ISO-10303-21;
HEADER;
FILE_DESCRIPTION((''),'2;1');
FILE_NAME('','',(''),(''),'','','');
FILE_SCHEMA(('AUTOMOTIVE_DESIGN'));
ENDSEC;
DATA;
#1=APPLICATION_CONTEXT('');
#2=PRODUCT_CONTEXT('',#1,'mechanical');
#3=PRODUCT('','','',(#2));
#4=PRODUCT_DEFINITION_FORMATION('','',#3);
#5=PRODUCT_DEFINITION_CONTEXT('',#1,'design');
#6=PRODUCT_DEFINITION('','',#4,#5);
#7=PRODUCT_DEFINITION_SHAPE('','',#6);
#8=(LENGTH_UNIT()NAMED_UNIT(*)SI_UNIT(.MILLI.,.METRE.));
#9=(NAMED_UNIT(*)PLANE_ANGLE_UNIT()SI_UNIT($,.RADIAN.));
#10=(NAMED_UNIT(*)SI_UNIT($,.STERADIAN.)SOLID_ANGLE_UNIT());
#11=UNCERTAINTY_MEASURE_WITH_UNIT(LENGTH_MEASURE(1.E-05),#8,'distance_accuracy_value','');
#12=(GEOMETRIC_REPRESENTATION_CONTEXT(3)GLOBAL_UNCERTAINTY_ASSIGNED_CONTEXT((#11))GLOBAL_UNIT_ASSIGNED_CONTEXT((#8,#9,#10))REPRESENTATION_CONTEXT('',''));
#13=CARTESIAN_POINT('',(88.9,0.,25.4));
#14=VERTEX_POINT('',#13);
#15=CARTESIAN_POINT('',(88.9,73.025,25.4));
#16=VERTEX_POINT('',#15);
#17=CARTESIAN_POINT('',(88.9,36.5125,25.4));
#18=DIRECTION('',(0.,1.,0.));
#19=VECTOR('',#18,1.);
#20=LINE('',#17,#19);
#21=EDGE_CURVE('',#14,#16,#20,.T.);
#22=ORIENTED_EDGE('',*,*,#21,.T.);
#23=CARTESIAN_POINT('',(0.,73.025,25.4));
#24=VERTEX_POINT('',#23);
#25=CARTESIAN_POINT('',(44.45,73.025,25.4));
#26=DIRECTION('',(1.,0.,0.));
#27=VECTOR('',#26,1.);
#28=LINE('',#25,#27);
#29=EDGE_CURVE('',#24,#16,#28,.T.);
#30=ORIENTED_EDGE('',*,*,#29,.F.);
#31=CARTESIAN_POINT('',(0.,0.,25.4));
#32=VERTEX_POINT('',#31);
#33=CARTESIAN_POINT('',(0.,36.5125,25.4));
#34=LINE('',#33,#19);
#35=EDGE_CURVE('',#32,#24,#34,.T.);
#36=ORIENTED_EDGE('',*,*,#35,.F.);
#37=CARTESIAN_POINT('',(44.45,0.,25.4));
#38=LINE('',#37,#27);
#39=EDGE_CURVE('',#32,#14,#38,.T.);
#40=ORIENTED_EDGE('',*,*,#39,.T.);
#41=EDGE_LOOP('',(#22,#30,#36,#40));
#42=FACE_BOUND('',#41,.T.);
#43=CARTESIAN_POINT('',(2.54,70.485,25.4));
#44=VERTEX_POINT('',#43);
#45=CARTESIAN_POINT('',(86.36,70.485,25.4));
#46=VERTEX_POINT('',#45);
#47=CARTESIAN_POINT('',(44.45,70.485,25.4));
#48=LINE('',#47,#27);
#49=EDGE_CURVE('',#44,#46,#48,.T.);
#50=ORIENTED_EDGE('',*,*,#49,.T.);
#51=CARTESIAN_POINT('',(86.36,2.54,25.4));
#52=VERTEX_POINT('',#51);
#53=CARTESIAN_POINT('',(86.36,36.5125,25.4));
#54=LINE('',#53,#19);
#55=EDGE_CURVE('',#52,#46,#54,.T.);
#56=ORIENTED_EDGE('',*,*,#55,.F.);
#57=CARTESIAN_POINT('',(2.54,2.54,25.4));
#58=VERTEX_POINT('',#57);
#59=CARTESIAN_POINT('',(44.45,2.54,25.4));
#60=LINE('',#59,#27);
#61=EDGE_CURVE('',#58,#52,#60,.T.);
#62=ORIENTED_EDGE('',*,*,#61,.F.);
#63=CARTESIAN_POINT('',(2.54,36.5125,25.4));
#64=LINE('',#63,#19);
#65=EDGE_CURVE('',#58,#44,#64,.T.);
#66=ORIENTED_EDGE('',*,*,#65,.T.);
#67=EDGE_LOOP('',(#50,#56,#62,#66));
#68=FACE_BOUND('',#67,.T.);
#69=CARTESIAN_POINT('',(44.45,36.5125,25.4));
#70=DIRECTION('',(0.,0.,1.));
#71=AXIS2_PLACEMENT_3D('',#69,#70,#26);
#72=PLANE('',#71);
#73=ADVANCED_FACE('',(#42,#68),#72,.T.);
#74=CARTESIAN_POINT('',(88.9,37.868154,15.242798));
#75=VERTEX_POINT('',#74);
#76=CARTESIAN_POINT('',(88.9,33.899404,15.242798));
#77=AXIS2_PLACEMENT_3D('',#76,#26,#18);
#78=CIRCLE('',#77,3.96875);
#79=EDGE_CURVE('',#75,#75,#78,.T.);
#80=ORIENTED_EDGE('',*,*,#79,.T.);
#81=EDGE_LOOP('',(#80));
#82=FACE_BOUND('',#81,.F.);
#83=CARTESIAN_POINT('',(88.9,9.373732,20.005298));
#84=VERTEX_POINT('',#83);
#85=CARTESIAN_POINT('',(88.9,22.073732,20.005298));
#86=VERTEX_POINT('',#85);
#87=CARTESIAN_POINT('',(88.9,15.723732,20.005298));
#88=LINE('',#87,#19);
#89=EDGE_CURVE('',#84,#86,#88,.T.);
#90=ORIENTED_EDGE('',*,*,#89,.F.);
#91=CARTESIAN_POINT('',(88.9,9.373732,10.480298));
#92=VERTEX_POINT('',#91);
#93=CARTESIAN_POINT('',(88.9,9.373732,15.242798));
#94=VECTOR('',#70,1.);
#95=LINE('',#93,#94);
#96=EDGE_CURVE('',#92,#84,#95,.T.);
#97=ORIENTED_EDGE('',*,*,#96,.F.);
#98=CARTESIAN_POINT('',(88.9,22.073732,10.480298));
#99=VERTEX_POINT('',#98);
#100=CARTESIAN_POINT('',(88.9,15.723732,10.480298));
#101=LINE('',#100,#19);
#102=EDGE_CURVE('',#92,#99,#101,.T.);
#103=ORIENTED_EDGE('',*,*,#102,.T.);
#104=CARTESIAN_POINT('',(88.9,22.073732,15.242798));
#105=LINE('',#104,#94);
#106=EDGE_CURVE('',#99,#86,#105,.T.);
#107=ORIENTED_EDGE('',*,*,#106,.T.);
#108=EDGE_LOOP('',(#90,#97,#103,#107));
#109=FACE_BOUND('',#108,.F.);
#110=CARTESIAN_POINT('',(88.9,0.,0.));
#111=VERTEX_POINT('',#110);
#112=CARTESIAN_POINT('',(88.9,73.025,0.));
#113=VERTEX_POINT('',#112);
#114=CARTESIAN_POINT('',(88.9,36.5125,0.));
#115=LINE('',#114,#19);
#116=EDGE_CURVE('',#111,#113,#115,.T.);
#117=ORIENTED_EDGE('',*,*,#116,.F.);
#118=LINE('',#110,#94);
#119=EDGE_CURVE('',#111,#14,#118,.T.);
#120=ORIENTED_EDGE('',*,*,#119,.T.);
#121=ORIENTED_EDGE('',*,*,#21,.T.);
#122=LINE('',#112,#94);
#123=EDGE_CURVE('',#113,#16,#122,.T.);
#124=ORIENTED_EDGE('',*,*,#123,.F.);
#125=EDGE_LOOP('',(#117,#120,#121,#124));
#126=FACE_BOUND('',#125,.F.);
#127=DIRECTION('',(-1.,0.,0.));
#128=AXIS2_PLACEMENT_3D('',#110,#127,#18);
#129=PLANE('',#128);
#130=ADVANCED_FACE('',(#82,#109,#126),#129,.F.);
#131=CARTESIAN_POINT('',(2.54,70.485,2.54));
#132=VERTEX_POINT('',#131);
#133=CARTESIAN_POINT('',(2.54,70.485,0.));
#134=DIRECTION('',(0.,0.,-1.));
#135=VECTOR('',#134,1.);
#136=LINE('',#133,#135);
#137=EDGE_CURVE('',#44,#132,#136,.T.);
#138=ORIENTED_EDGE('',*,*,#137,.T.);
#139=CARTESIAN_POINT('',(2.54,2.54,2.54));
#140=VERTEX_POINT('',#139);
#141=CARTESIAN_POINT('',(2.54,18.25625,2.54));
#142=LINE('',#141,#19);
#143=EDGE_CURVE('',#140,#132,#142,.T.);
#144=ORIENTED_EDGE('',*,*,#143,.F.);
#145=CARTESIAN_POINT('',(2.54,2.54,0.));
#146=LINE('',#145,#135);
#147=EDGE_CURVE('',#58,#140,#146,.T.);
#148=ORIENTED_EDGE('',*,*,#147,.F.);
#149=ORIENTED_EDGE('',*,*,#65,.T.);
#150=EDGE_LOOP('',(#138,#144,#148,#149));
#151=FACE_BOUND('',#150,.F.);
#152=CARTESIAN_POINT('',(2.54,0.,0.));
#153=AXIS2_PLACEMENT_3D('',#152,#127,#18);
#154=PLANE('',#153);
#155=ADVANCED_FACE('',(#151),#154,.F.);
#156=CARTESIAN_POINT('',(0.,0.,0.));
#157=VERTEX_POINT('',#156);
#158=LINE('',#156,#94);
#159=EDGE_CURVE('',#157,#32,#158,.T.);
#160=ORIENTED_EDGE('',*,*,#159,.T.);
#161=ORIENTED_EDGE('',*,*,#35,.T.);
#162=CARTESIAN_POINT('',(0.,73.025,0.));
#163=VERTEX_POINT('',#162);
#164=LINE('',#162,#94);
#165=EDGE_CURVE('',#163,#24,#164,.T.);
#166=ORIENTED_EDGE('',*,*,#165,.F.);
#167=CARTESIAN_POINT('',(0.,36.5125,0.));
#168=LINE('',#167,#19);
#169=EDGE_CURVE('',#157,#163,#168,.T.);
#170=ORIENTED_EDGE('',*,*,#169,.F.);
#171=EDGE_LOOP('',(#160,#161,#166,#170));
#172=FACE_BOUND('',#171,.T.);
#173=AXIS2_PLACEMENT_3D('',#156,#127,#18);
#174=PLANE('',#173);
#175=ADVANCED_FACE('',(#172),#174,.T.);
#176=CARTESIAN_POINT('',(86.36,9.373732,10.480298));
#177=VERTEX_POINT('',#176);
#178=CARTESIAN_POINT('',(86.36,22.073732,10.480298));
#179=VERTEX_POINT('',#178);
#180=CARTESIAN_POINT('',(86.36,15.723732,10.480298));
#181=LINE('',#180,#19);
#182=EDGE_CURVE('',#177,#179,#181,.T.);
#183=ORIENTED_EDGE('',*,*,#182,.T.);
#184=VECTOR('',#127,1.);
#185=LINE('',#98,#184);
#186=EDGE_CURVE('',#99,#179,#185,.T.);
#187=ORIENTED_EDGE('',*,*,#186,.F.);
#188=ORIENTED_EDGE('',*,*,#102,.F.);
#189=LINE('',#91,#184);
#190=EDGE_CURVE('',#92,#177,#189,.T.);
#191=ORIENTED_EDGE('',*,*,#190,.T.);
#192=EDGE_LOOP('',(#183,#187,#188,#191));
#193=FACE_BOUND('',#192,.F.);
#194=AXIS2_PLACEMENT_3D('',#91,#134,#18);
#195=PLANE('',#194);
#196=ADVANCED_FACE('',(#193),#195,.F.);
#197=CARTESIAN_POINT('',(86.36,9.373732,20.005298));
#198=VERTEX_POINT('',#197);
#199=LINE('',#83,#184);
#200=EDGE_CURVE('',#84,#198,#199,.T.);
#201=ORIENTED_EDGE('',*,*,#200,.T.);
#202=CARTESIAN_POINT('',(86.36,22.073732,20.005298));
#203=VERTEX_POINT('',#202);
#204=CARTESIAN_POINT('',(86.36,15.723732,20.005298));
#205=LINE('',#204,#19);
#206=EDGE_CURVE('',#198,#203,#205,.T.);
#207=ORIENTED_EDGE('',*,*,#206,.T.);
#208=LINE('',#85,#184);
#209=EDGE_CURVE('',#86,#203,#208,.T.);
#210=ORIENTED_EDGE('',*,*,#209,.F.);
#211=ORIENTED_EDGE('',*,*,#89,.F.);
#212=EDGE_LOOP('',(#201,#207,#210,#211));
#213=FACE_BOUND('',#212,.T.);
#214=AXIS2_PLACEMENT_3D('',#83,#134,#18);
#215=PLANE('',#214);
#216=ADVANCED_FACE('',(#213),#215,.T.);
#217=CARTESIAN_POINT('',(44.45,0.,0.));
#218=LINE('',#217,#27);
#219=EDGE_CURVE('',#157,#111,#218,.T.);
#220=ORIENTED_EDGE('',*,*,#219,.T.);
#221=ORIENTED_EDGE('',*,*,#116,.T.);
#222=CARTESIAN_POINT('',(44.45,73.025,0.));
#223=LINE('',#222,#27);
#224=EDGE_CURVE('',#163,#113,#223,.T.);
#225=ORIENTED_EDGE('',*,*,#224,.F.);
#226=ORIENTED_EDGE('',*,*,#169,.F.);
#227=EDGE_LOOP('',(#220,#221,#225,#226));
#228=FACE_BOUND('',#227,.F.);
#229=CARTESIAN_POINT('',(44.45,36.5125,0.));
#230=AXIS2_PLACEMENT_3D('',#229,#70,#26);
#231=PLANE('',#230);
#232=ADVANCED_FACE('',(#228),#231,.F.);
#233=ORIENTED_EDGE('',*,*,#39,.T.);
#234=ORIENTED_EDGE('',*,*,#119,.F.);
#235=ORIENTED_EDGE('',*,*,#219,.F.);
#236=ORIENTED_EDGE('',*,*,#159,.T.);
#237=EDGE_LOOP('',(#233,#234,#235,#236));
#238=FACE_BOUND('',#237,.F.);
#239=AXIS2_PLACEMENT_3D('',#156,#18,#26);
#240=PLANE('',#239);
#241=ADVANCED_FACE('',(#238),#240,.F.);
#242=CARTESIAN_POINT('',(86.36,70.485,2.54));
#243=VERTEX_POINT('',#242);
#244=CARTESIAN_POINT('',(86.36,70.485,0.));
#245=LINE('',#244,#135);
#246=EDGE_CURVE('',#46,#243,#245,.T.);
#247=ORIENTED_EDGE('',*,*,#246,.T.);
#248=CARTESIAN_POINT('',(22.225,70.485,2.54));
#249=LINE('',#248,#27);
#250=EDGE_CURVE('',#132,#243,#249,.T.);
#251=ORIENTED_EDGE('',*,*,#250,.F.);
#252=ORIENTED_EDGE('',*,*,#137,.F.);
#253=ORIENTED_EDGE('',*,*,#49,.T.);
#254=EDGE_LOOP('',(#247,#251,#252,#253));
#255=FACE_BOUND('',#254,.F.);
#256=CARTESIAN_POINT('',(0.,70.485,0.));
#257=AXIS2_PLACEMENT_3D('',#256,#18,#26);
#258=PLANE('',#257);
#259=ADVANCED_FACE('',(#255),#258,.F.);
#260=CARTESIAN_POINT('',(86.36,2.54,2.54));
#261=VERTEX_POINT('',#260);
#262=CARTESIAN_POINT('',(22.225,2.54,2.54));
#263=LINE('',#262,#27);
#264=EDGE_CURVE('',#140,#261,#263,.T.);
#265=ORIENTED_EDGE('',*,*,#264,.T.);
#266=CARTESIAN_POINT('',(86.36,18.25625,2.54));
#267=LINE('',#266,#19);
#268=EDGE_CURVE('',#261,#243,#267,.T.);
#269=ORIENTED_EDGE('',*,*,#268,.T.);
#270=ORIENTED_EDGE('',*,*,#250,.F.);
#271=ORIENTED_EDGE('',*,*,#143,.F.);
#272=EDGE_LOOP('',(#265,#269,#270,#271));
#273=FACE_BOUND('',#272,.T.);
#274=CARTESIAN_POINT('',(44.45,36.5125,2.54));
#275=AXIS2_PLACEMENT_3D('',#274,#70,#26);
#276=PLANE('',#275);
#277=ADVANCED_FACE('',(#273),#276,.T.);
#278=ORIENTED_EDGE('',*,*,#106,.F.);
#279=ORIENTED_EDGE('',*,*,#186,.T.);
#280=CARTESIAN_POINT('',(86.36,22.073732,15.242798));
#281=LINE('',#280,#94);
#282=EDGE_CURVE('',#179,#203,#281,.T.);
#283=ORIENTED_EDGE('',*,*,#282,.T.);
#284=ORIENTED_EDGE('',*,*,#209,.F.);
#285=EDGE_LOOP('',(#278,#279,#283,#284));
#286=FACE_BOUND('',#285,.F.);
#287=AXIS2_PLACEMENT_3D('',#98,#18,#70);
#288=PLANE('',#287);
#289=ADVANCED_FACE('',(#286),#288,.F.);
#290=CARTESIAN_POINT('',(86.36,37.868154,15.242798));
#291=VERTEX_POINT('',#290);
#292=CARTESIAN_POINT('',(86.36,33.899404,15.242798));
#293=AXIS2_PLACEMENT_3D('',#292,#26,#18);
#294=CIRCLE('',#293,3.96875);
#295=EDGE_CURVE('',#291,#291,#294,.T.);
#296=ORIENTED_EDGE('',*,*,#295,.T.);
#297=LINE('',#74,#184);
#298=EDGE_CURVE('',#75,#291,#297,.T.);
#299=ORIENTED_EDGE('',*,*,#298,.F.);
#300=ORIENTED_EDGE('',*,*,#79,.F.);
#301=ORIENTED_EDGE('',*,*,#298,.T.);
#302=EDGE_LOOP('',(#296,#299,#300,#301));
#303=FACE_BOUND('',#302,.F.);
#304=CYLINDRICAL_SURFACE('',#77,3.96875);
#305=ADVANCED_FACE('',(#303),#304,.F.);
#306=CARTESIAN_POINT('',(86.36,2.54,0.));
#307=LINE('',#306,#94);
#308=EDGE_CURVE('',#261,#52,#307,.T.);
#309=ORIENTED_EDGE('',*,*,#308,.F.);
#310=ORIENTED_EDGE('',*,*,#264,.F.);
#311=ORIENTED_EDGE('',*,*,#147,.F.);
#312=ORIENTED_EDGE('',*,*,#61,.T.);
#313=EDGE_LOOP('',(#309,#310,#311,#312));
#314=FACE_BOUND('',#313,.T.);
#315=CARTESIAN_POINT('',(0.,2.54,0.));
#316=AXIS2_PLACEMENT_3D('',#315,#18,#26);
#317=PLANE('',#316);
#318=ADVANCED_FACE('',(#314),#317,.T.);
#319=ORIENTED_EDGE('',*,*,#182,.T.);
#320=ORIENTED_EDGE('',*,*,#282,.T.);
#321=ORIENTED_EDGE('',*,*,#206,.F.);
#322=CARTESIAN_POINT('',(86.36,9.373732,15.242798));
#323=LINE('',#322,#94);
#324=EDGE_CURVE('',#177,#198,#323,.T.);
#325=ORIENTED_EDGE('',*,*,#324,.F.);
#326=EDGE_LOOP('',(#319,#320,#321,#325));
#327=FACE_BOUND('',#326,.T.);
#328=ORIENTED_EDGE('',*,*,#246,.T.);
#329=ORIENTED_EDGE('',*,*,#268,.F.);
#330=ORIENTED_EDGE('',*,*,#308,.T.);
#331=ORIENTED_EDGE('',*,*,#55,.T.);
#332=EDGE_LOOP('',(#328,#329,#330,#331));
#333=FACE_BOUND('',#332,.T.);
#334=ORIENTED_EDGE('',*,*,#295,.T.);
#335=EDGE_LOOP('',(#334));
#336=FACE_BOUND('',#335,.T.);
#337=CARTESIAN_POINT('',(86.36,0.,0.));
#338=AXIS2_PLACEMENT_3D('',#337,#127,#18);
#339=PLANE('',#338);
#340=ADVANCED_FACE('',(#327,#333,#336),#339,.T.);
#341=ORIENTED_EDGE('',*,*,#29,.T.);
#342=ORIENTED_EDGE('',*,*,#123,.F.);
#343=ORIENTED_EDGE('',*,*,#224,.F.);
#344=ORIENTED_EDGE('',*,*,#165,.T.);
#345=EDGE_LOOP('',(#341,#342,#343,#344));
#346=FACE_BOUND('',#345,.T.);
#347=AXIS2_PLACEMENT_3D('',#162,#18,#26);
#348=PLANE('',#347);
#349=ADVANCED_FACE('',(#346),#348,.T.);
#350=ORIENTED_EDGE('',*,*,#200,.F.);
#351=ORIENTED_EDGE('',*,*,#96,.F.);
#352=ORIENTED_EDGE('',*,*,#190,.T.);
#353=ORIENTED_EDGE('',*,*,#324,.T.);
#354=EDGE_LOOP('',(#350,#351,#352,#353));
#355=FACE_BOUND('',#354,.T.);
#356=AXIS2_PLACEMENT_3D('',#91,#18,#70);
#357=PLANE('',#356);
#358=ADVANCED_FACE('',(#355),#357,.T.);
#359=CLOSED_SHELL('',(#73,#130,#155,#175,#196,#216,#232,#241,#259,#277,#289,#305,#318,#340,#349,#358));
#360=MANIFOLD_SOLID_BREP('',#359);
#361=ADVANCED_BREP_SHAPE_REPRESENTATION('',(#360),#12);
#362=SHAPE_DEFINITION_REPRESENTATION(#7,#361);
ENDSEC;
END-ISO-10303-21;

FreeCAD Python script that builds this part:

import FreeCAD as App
import Part
import Sketcher

V = App.Vector
Q = App.Units.Quantity


def faces_at(feature, points):
    """Names of the faces that lie closest to the given points."""
    faces = feature.Shape.Faces
    near = lambda p: min(range(len(faces)), key=lambda i: faces[i].distToShape(Part.Vertex(*p))[0])
    return sorted({f"Face{near(p) + 1}" for p in points})


def add_polygon(sketch, points):
    """Adds a closed chain of lines whose ends are joined by coincident constraints."""
    first, n = sketch.GeometryCount, len(points)
    for a, b in zip(points, points[1:] + points[:1]):
        sketch.addGeometry(Part.LineSegment(App.Vector(*a, 0), App.Vector(*b, 0)), False)
    for i in range(n):
        sketch.addConstraint(Sketcher.Constraint("Coincident", first + i, 2, first + (i + 1) % n, 1))

doc = App.newDocument("Part")
body = doc.addObject("PartDesign::Body", "Body")

sketch1 = body.newObject("Sketcher::SketchObject", "Sketch")
sketch1.AttachmentSupport = (doc.getObject("XY_Plane"), [""])
sketch1.MapMode = "FlatFace"
add_polygon(sketch1, [(0, 73), (0, 0), (89, 0), (89, 73)])
sketch1.addConstraint([
    Sketcher.Constraint("Vertical", 0),
    Sketcher.Constraint("Horizontal", 1),
    Sketcher.Constraint("Vertical", 2),
    Sketcher.Constraint("Horizontal", 3),
    Sketcher.Constraint("Coincident", 0, 2, -1, 1),
    Sketcher.Constraint("DistanceX", 1, 1, 1, 2, Q("3.5 in")),
    Sketcher.Constraint("DistanceY", 0, 2, 0, 1, Q("2.875 in")),
])
pad1 = body.newObject("PartDesign::Pad", "Pad")
pad1.Profile = sketch1
pad1.Length = Q("1 in")
doc.recompute()

thickness = body.newObject("PartDesign::Thickness", "Thickness")
thickness.Base = (pad1, faces_at(pad1, [(44.45, 36.513, 25.4)]))
thickness.Value = Q("0.1 in")
thickness.Reversed = True
thickness.Join = "Arc"

sketch2 = body.newObject("Sketcher::SketchObject", "Sketch001")
sketch2.AttachmentSupport = (doc.getObject("YZ_Plane"), [""])
sketch2.MapMode = "FlatFace"
sketch2.AttachmentOffset = App.Placement(V(0, 0, 3.5 * 25.4), App.Rotation())
add_polygon(sketch2, [(9.4, 20), (9.4, 10.5), (22.1, 10.5), (22.1, 20)])
sketch2.addGeometry(Part.Circle(V(33.9, 15.2, 0), V(0, 0, 1), 4), False)
sketch2.addConstraint([
    Sketcher.Constraint("Vertical", 0),
    Sketcher.Constraint("Horizontal", 1),
    Sketcher.Constraint("Vertical", 2),
    Sketcher.Constraint("Horizontal", 3),
    Sketcher.Constraint("Diameter", 4, Q("0.3125 in")),
    Sketcher.Constraint("DistanceX", 1, 1, 1, 2, Q("0.5 in")),
    Sketcher.Constraint("DistanceY", 0, 2, 0, 1, Q("0.375 in")),
    Sketcher.Constraint("DistanceY", 0, 2, 4, 3, Q("0.1875 in")),
    Sketcher.Constraint("DistanceY", -1, 1, 2, 2, 20.005298),
    Sketcher.Constraint("DistanceX", -1, 1, 1, 2, 22.073732),
    Sketcher.Constraint("DistanceX", 0, 2, 4, 3, 24.525672),
])
pocket1 = body.newObject("PartDesign::Pocket", "Pocket")
pocket1.Profile = sketch2
pocket1.Length = Q("0.1 in")

doc.recompute()
